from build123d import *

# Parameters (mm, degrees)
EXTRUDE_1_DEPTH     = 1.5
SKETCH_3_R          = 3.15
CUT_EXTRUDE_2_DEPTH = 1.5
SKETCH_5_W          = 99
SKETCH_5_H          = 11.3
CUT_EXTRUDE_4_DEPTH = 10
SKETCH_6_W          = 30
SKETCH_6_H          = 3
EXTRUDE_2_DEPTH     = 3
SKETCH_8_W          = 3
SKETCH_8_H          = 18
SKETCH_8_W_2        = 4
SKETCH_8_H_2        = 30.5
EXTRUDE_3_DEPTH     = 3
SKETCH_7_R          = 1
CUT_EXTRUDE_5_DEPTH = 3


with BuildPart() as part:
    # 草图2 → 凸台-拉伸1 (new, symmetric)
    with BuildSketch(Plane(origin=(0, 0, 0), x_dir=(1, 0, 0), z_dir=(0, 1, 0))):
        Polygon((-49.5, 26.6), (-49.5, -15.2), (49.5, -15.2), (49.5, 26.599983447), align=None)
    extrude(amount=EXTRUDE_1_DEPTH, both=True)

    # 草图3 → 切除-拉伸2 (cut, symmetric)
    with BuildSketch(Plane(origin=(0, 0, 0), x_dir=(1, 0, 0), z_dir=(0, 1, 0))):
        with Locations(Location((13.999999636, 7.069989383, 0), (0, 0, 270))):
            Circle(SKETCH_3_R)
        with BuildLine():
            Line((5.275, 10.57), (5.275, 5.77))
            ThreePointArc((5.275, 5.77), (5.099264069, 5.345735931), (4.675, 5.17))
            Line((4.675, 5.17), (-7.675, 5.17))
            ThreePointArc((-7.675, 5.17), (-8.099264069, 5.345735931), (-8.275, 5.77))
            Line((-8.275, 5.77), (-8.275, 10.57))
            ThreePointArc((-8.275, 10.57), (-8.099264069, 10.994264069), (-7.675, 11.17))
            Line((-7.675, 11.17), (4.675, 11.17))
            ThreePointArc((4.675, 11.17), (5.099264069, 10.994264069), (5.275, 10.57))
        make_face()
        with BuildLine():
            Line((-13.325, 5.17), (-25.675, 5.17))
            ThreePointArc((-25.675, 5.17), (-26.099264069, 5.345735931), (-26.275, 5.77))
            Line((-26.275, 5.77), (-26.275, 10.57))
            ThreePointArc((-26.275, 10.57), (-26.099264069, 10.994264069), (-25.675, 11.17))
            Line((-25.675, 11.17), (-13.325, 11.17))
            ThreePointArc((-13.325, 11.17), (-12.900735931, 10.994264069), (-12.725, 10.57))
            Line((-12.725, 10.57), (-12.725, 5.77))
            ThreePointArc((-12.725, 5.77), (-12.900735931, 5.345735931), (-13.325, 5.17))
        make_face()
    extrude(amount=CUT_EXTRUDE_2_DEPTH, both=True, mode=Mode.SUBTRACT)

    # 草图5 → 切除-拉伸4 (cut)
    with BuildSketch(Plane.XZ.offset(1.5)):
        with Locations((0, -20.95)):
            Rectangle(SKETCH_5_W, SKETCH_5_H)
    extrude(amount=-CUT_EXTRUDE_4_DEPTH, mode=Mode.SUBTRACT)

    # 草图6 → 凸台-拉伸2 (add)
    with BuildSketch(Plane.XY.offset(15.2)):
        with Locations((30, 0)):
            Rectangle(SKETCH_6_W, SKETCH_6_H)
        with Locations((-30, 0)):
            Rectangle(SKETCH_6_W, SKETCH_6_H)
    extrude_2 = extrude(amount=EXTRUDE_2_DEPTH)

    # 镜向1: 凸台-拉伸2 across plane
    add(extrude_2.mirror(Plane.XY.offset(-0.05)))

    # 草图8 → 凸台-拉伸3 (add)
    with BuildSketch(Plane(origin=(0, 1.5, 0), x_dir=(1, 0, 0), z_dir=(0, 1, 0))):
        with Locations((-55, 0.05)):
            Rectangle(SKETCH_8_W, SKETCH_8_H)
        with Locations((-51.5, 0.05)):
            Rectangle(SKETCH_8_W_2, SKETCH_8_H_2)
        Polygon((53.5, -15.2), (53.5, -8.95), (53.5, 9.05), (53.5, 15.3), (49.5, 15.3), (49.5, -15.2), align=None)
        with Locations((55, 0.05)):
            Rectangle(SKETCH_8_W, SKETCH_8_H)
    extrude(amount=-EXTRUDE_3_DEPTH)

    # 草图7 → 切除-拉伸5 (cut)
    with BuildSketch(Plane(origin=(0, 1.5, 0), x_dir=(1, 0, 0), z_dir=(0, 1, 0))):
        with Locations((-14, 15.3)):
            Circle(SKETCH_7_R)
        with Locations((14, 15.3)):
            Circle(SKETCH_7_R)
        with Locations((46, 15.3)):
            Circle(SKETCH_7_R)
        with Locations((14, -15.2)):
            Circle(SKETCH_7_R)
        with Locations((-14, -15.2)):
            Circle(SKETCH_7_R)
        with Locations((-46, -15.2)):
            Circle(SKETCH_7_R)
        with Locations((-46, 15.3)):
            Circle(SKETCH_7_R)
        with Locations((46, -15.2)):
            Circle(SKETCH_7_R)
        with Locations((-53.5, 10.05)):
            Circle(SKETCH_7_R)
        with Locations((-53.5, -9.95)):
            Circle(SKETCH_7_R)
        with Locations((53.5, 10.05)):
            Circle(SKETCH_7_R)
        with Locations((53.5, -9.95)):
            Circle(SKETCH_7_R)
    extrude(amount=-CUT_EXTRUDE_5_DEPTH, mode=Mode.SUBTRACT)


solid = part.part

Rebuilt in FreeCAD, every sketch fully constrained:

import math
import FreeCAD as App
import Part
import Sketcher
from FreeCAD import Vector
Q = App.Units.Quantity


def add_polygon(sketch, points):
    """Adds a closed chain of lines whose ends are joined by coincident constraints."""
    first, n = sketch.GeometryCount, len(points)
    for a, b in zip(points, points[1:] + points[:1]):
        sketch.addGeometry(Part.LineSegment(App.Vector(*a, 0), App.Vector(*b, 0)), False)
    for i in range(n):
        sketch.addConstraint(Sketcher.Constraint("Coincident", first + i, 2, first + (i + 1) % n, 1))

doc = App.newDocument("Part")
body = doc.addObject("PartDesign::Body", "Body")

# Sketch on XZ plane
sketch1 = doc.addObject("Sketcher::SketchObject", "Sketch")
body.addObject(sketch1)
sketch1.AttachmentSupport = (doc.XZ_Plane, [""])
sketch1.MapMode = "FlatFace"
add_polygon(sketch1, [(-49.5, -26.6), (-49.5, 15.2), (49.5, 15.2), (49.5, -26.599983)])  # lines 0-3
sketch1.addConstraint([
    Sketcher.Constraint("Vertical", 0),
    Sketcher.Constraint("Horizontal", 1),
    Sketcher.Constraint("Vertical", 2),
    Sketcher.Constraint("DistanceX", 1, 1, 1, 2, 99.0),
    Sketcher.Constraint("Angle", 3, Q("-179.99999 deg")),
    Sketcher.Constraint("DistanceY", 0, 1, 0, 2, 41.8),
    Sketcher.Constraint("DistanceX", 0, 2, -1, 1, 49.5),
    Sketcher.Constraint("DistanceY", -1, 1, 0, 2, 15.2),
])
pad1 = doc.addObject("PartDesign::Pad", "Pad")
body.addObject(pad1)
pad1.Profile = sketch1
pad1.Length = 3
pad1.Midplane = True

# Sketch on XZ plane
sketch2 = doc.addObject("Sketcher::SketchObject", "Sketch001")
body.addObject(sketch2)
sketch2.AttachmentSupport = (doc.XZ_Plane, [""])
sketch2.MapMode = "FlatFace"
sketch2.addGeometry([
    Part.Circle(Vector(14, -7.069989, 0), Vector(0, 0, 1), 3.15),  # 0
    Part.LineSegment(Vector(5.275, -5.77, 0), Vector(5.275, -10.57, 0)),  # 1
    Part.ArcOfCircle(Part.Circle(Vector(4.675, -10.57, 0), Vector(0, 0, 1), 0.6), math.radians(-90), math.radians(0)),  # 2
    Part.LineSegment(Vector(4.675, -11.17, 0), Vector(-7.675, -11.17, 0)),  # 3
    Part.ArcOfCircle(Part.Circle(Vector(-7.675, -10.57, 0), Vector(0, 0, 1), 0.6), math.radians(180), math.radians(270)),  # 4
    Part.LineSegment(Vector(-8.275, -10.57, 0), Vector(-8.275, -5.77, 0)),  # 5
    Part.ArcOfCircle(Part.Circle(Vector(-7.675, -5.77, 0), Vector(0, 0, 1), 0.6), math.radians(90), math.radians(180)),  # 6
    Part.LineSegment(Vector(-7.675, -5.17, 0), Vector(4.675, -5.17, 0)),  # 7
    Part.ArcOfCircle(Part.Circle(Vector(4.675, -5.77, 0), Vector(0, 0, 1), 0.6), math.radians(0), math.radians(90)),  # 8
    Part.LineSegment(Vector(-25.675, -5.17, 0), Vector(-13.325, -5.17, 0)),  # 9
    Part.ArcOfCircle(Part.Circle(Vector(-13.325, -5.77, 0), Vector(0, 0, 1), 0.6), math.radians(0), math.radians(90)),  # 10
    Part.LineSegment(Vector(-12.725, -5.77, 0), Vector(-12.725, -10.57, 0)),  # 11
    Part.ArcOfCircle(Part.Circle(Vector(-13.325, -10.57, 0), Vector(0, 0, 1), 0.6), math.radians(-90), math.radians(0)),  # 12
    Part.LineSegment(Vector(-13.325, -11.17, 0), Vector(-25.675, -11.17, 0)),  # 13
    Part.ArcOfCircle(Part.Circle(Vector(-25.675, -10.57, 0), Vector(0, 0, 1), 0.6), math.radians(180), math.radians(270)),  # 14
    Part.LineSegment(Vector(-26.275, -10.57, 0), Vector(-26.275, -5.77, 0)),  # 15
    Part.ArcOfCircle(Part.Circle(Vector(-25.675, -5.77, 0), Vector(0, 0, 1), 0.6), math.radians(90), math.radians(180)),  # 16
], False)
sketch2.addConstraint([
    Sketcher.Constraint("Tangent", 1, 2, 2, 2),
    Sketcher.Constraint("Tangent", 2, 1, 3, 1),
    Sketcher.Constraint("Tangent", 3, 2, 4, 2),
    Sketcher.Constraint("Tangent", 4, 1, 5, 1),
    Sketcher.Constraint("Tangent", 5, 2, 6, 2),
    Sketcher.Constraint("Tangent", 6, 1, 7, 1),
    Sketcher.Constraint("Tangent", 7, 2, 8, 2),
    Sketcher.Constraint("Tangent", 8, 1, 1, 1),
    Sketcher.Constraint("Tangent", 9, 2, 10, 2),
    Sketcher.Constraint("Tangent", 10, 1, 11, 1),
    Sketcher.Constraint("Tangent", 11, 2, 12, 2),
    Sketcher.Constraint("Tangent", 12, 1, 13, 1),
    Sketcher.Constraint("Tangent", 13, 2, 14, 2),
    Sketcher.Constraint("Tangent", 14, 1, 15, 1),
    Sketcher.Constraint("Tangent", 15, 2, 16, 2),
    Sketcher.Constraint("Tangent", 16, 1, 9, 1),
    Sketcher.Constraint("Vertical", 1),
    Sketcher.Constraint("Horizontal", 3),
    Sketcher.Constraint("Vertical", 5),
    Sketcher.Constraint("Horizontal", 7),
    Sketcher.Constraint("Horizontal", 9),
    Sketcher.Constraint("Vertical", 11),
    Sketcher.Constraint("Horizontal", 13),
    Sketcher.Constraint("Vertical", 15),
    Sketcher.Constraint("Equal", 2, 4),
    Sketcher.Constraint("Equal", 4, 6),
    Sketcher.Constraint("Equal", 6, 8),
    Sketcher.Constraint("Equal", 8, 10),
    Sketcher.Constraint("Equal", 10, 12),
    Sketcher.Constraint("Equal", 12, 14),
    Sketcher.Constraint("Equal", 14, 16),
    Sketcher.Constraint("Horizontal", 8, 3, 10, 3),
    Sketcher.Constraint("Horizontal", 4, 3, 12, 3),
    Sketcher.Constraint("Equal", 7, 9),
    Sketcher.Constraint("Diameter", 0, 6.3),
    Sketcher.Constraint("Radius", 2, 0.6),
    Sketcher.Constraint("DistanceY", 1, 2, 1, 1, 4.8),
    Sketcher.Constraint("DistanceX", -1, 1, 0, 3, 14.0),
    Sketcher.Constraint("DistanceX", 10, 3, 8, 3, 18.0),
    Sketcher.Constraint("DistanceX", 3, 2, 3, 1, 12.35),
    Sketcher.Constraint("DistanceY", 2, 3, -1, 1, 10.57),
    Sketcher.Constraint("DistanceX", -1, 1, 2, 3, 4.675),
    Sketcher.Constraint("DistanceY", 0, 3, -1, 1, 7.069989),
])
pocket1 = doc.addObject("PartDesign::Pocket", "Pocket")
body.addObject(pocket1)
pocket1.Profile = sketch2
pocket1.Length = 3
pocket1.Midplane = True

# Sketch on XZ plane
sketch3 = doc.addObject("Sketcher::SketchObject", "Sketch002")
body.addObject(sketch3)
sketch3.AttachmentSupport = (doc.XZ_Plane, [""])
sketch3.MapMode = "FlatFace"
sketch3.AttachmentOffset = App.Placement(Vector(0, 0, 1.5), App.Rotation())
add_polygon(sketch3, [(-49.5, -15.3), (-49.5, -26.6), (49.5, -26.6), (49.5, -15.3)])  # lines 0-3
sketch3.addConstraint([
    Sketcher.Constraint("Vertical", 0),
    Sketcher.Constraint("Horizontal", 1),
    Sketcher.Constraint("Vertical", 2),
    Sketcher.Constraint("Horizontal", 3),
    Sketcher.Constraint("DistanceX", 1, 1, 1, 2, 99.0),
    Sketcher.Constraint("DistanceY", 0, 2, 0, 1, 11.3),
    Sketcher.Constraint("DistanceX", 0, 2, -1, 1, 49.5),
    Sketcher.Constraint("DistanceY", 0, 2, -1, 1, 26.6),
])
pocket2 = doc.addObject("PartDesign::Pocket", "Pocket001")
body.addObject(pocket2)
pocket2.Profile = sketch3
pocket2.Length = 10

# Sketch on XY plane
sketch4 = doc.addObject("Sketcher::SketchObject", "Sketch003")
body.addObject(sketch4)
sketch4.AttachmentSupport = (doc.XY_Plane, [""])
sketch4.MapMode = "FlatFace"
sketch4.AttachmentOffset = App.Placement(Vector(0, 0, 15.2), App.Rotation())
add_polygon(sketch4, [(15, 1.5), (15, -1.5), (45, -1.5), (45, 1.5)])  # lines 0-3
add_polygon(sketch4, [(-45, 1.5), (-45, -1.5), (-15, -1.5), (-15, 1.5)])  # lines 4-7
sketch4.addConstraint([
    Sketcher.Constraint("Vertical", 0),
    Sketcher.Constraint("Horizontal", 1),
    Sketcher.Constraint("Vertical", 2),
    Sketcher.Constraint("Horizontal", 3),
    Sketcher.Constraint("Vertical", 4),
    Sketcher.Constraint("Horizontal", 5),
    Sketcher.Constraint("Vertical", 6),
    Sketcher.Constraint("Horizontal", 7),
    Sketcher.Constraint("Symmetric", 2, 2, 4, 2, -1, 1),
    Sketcher.Constraint("Symmetric", 0, 2, 6, 2, -1, 1),
    Sketcher.Constraint("Horizontal", 1, 2, 4, 2),
    Sketcher.Constraint("DistanceX", 1, 1, 1, 2, 30.0),
    Sketcher.Constraint("DistanceY", 0, 2, 0, 1, 3.0),
    Sketcher.Constraint("DistanceX", -1, 1, 0, 2, 15.0),
])
pad2 = doc.addObject("PartDesign::Pad", "Pad001")
body.addObject(pad2)
pad2.Profile = sketch4
pad2.Length = 3
doc.recompute()

datumplane = doc.addObject("PartDesign::Plane", "DatumPlane")
body.addObject(datumplane)
datumplane.AttachmentSupport = (doc.XY_Plane, [""])
datumplane.MapMode = "FlatFace"
datumplane.AttachmentOffset = App.Placement(Vector(0, 0, -0.05), App.Rotation())
mirrored = doc.addObject("PartDesign::Mirrored", "Mirrored")
body.addObject(mirrored)
mirrored.Originals = [pad2]
mirrored.MirrorPlane = (datumplane, [""])
body.Tip = mirrored

# Sketch on XZ plane
sketch5 = doc.addObject("Sketcher::SketchObject", "Sketch004")
body.addObject(sketch5)
sketch5.AttachmentSupport = (doc.XZ_Plane, [""])
sketch5.MapMode = "FlatFace"
sketch5.AttachmentOffset = App.Placement(Vector(0, 0, -1.5), App.Rotation())
add_polygon(sketch5, [(-56.5, -9.05), (-56.5, 8.95), (-53.5, 8.95), (-53.5, 15.2), (-49.5, 15.2), (-49.5, -15.3), (-53.5, -15.3), (-53.5, -9.05)])  # lines 0-7
add_polygon(sketch5, [(53.5, 15.2), (53.5, 8.95), (56.5, 8.95), (56.5, -9.05), (53.5, -9.05), (53.5, -15.3), (49.5, -15.3), (49.5, 15.2)])  # lines 8-15
sketch5.addConstraint([
    Sketcher.Constraint("Vertical", 0),
    Sketcher.Constraint("Horizontal", 1),
    Sketcher.Constraint("Vertical", 2),
    Sketcher.Constraint("Horizontal", 3),
    Sketcher.Constraint("Vertical", 4),
    Sketcher.Constraint("Horizontal", 5),
    Sketcher.Constraint("Vertical", 6),
    Sketcher.Constraint("Horizontal", 7),
    Sketcher.Constraint("Vertical", 8),
    Sketcher.Constraint("Horizontal", 9),
    Sketcher.Constraint("Vertical", 10),
    Sketcher.Constraint("Horizontal", 11),
    Sketcher.Constraint("Vertical", 12),
    Sketcher.Constraint("Horizontal", 13),
    Sketcher.Constraint("Vertical", 14),
    Sketcher.Constraint("Horizontal", 15),
    Sketcher.Constraint("Symmetric", 1, 2, 8, 2, -2),
    Sketcher.Constraint("Symmetric", 7, 2, 10, 2, -2),
    Sketcher.Constraint("Symmetric", 5, 2, 12, 2, -2),
    Sketcher.Constraint("Symmetric", 3, 2, 14, 2, -2),
    Sketcher.Constraint("Vertical", 2, 2, 5, 2),
    Sketcher.Constraint("Equal", 2, 6),
    Sketcher.Constraint("DistanceX", 1, 1, 1, 2, 3.0),
    Sketcher.Constraint("DistanceX", 3, 1, 3, 2, 4.0),
    Sketcher.Constraint("DistanceY", 0, 1, 0, 2, 18.0),
    Sketcher.Constraint("DistanceY", 4, 2, 4, 1, 30.5),
    Sketcher.Constraint("DistanceX", 3, 2, 8, 2, 103.0),
    Sketcher.Constraint("DistanceY", -1, 1, 2, 2, 15.2),
])
pad3 = doc.addObject("PartDesign::Pad", "Pad002")
body.addObject(pad3)
pad3.Profile = sketch5
pad3.Length = 3

# Sketch on XZ plane
sketch6 = doc.addObject("Sketcher::SketchObject", "Sketch005")
body.addObject(sketch6)
sketch6.AttachmentSupport = (doc.XZ_Plane, [""])
sketch6.MapMode = "FlatFace"
sketch6.AttachmentOffset = App.Placement(Vector(0, 0, -1.5), App.Rotation())
sketch6.addGeometry([
    Part.Circle(Vector(-14, -15.3, 0), Vector(0, 0, 1), 1),  # 0
    Part.Circle(Vector(14, -15.3, 0), Vector(0, 0, 1), 1),  # 1
    Part.Circle(Vector(46, -15.3, 0), Vector(0, 0, 1), 1),  # 2
    Part.Circle(Vector(14, 15.2, 0), Vector(0, 0, 1), 1),  # 3
    Part.Circle(Vector(-14, 15.2, 0), Vector(0, 0, 1), 1),  # 4
    Part.Circle(Vector(-46, 15.2, 0), Vector(0, 0, 1), 1),  # 5
    Part.Circle(Vector(-46, -15.3, 0), Vector(0, 0, 1), 1),  # 6
    Part.Circle(Vector(46, 15.2, 0), Vector(0, 0, 1), 1),  # 7
    Part.Circle(Vector(-53.5, -10.05, 0), Vector(0, 0, 1), 1),  # 8
    Part.Circle(Vector(-53.5, 9.95, 0), Vector(0, 0, 1), 1),  # 9
    Part.Circle(Vector(53.5, -10.05, 0), Vector(0, 0, 1), 1),  # 10
    Part.Circle(Vector(53.5, 9.95, 0), Vector(0, 0, 1), 1),  # 11
], False)
sketch6.addConstraint([
    Sketcher.Constraint("Equal", 0, 1),
    Sketcher.Constraint("Equal", 1, 2),
    Sketcher.Constraint("Equal", 2, 3),
    Sketcher.Constraint("Equal", 3, 4),
    Sketcher.Constraint("Equal", 4, 5),
    Sketcher.Constraint("Equal", 5, 6),
    Sketcher.Constraint("Equal", 6, 7),
    Sketcher.Constraint("Equal", 7, 8),
    Sketcher.Constraint("Equal", 8, 9),
    Sketcher.Constraint("Equal", 9, 10),
    Sketcher.Constraint("Equal", 10, 11),
    Sketcher.Constraint("Symmetric", 0, 3, 1, 3, -2),
    Sketcher.Constraint("Symmetric", 3, 3, 4, 3, -2),
    Sketcher.Constraint("Symmetric", 2, 3, 6, 3, -2),
    Sketcher.Constraint("Symmetric", 5, 3, 7, 3, -2),
    Sketcher.Constraint("Symmetric", 8, 3, 10, 3, -2),
    Sketcher.Constraint("Symmetric", 9, 3, 11, 3, -2),
    Sketcher.Constraint("Horizontal", 1, 3, 2, 3),
    Sketcher.Constraint("Horizontal", 4, 3, 5, 3),
    Sketcher.Constraint("Vertical", 1, 3, 3, 3),
    Sketcher.Constraint("Vertical", 5, 3, 6, 3),
    Sketcher.Constraint("Vertical", 8, 3, 9, 3),
    Sketcher.Constraint("Diameter", 0, 2.0),
    Sketcher.Constraint("DistanceX", 0, 3, -1, 1, 14.0),
    Sketcher.Constraint("DistanceX", -1, 1, 2, 3, 46.0),
    Sketcher.Constraint("DistanceY", 8, 3, 9, 3, 20.0),
    Sketcher.Constraint("DistanceY", 0, 3, -1, 1, 15.3),
    Sketcher.Constraint("DistanceY", -1, 1, 3, 3, 15.2),
    Sketcher.Constraint("DistanceX", 8, 3, -1, 1, 53.5),
    Sketcher.Constraint("DistanceY", 8, 3, -1, 1, 10.05),
])
pocket3 = doc.addObject("PartDesign::Pocket", "Pocket002")
body.addObject(pocket3)
pocket3.Profile = sketch6
pocket3.Length = 3
pocket3.Reversed = True

doc.recompute()
